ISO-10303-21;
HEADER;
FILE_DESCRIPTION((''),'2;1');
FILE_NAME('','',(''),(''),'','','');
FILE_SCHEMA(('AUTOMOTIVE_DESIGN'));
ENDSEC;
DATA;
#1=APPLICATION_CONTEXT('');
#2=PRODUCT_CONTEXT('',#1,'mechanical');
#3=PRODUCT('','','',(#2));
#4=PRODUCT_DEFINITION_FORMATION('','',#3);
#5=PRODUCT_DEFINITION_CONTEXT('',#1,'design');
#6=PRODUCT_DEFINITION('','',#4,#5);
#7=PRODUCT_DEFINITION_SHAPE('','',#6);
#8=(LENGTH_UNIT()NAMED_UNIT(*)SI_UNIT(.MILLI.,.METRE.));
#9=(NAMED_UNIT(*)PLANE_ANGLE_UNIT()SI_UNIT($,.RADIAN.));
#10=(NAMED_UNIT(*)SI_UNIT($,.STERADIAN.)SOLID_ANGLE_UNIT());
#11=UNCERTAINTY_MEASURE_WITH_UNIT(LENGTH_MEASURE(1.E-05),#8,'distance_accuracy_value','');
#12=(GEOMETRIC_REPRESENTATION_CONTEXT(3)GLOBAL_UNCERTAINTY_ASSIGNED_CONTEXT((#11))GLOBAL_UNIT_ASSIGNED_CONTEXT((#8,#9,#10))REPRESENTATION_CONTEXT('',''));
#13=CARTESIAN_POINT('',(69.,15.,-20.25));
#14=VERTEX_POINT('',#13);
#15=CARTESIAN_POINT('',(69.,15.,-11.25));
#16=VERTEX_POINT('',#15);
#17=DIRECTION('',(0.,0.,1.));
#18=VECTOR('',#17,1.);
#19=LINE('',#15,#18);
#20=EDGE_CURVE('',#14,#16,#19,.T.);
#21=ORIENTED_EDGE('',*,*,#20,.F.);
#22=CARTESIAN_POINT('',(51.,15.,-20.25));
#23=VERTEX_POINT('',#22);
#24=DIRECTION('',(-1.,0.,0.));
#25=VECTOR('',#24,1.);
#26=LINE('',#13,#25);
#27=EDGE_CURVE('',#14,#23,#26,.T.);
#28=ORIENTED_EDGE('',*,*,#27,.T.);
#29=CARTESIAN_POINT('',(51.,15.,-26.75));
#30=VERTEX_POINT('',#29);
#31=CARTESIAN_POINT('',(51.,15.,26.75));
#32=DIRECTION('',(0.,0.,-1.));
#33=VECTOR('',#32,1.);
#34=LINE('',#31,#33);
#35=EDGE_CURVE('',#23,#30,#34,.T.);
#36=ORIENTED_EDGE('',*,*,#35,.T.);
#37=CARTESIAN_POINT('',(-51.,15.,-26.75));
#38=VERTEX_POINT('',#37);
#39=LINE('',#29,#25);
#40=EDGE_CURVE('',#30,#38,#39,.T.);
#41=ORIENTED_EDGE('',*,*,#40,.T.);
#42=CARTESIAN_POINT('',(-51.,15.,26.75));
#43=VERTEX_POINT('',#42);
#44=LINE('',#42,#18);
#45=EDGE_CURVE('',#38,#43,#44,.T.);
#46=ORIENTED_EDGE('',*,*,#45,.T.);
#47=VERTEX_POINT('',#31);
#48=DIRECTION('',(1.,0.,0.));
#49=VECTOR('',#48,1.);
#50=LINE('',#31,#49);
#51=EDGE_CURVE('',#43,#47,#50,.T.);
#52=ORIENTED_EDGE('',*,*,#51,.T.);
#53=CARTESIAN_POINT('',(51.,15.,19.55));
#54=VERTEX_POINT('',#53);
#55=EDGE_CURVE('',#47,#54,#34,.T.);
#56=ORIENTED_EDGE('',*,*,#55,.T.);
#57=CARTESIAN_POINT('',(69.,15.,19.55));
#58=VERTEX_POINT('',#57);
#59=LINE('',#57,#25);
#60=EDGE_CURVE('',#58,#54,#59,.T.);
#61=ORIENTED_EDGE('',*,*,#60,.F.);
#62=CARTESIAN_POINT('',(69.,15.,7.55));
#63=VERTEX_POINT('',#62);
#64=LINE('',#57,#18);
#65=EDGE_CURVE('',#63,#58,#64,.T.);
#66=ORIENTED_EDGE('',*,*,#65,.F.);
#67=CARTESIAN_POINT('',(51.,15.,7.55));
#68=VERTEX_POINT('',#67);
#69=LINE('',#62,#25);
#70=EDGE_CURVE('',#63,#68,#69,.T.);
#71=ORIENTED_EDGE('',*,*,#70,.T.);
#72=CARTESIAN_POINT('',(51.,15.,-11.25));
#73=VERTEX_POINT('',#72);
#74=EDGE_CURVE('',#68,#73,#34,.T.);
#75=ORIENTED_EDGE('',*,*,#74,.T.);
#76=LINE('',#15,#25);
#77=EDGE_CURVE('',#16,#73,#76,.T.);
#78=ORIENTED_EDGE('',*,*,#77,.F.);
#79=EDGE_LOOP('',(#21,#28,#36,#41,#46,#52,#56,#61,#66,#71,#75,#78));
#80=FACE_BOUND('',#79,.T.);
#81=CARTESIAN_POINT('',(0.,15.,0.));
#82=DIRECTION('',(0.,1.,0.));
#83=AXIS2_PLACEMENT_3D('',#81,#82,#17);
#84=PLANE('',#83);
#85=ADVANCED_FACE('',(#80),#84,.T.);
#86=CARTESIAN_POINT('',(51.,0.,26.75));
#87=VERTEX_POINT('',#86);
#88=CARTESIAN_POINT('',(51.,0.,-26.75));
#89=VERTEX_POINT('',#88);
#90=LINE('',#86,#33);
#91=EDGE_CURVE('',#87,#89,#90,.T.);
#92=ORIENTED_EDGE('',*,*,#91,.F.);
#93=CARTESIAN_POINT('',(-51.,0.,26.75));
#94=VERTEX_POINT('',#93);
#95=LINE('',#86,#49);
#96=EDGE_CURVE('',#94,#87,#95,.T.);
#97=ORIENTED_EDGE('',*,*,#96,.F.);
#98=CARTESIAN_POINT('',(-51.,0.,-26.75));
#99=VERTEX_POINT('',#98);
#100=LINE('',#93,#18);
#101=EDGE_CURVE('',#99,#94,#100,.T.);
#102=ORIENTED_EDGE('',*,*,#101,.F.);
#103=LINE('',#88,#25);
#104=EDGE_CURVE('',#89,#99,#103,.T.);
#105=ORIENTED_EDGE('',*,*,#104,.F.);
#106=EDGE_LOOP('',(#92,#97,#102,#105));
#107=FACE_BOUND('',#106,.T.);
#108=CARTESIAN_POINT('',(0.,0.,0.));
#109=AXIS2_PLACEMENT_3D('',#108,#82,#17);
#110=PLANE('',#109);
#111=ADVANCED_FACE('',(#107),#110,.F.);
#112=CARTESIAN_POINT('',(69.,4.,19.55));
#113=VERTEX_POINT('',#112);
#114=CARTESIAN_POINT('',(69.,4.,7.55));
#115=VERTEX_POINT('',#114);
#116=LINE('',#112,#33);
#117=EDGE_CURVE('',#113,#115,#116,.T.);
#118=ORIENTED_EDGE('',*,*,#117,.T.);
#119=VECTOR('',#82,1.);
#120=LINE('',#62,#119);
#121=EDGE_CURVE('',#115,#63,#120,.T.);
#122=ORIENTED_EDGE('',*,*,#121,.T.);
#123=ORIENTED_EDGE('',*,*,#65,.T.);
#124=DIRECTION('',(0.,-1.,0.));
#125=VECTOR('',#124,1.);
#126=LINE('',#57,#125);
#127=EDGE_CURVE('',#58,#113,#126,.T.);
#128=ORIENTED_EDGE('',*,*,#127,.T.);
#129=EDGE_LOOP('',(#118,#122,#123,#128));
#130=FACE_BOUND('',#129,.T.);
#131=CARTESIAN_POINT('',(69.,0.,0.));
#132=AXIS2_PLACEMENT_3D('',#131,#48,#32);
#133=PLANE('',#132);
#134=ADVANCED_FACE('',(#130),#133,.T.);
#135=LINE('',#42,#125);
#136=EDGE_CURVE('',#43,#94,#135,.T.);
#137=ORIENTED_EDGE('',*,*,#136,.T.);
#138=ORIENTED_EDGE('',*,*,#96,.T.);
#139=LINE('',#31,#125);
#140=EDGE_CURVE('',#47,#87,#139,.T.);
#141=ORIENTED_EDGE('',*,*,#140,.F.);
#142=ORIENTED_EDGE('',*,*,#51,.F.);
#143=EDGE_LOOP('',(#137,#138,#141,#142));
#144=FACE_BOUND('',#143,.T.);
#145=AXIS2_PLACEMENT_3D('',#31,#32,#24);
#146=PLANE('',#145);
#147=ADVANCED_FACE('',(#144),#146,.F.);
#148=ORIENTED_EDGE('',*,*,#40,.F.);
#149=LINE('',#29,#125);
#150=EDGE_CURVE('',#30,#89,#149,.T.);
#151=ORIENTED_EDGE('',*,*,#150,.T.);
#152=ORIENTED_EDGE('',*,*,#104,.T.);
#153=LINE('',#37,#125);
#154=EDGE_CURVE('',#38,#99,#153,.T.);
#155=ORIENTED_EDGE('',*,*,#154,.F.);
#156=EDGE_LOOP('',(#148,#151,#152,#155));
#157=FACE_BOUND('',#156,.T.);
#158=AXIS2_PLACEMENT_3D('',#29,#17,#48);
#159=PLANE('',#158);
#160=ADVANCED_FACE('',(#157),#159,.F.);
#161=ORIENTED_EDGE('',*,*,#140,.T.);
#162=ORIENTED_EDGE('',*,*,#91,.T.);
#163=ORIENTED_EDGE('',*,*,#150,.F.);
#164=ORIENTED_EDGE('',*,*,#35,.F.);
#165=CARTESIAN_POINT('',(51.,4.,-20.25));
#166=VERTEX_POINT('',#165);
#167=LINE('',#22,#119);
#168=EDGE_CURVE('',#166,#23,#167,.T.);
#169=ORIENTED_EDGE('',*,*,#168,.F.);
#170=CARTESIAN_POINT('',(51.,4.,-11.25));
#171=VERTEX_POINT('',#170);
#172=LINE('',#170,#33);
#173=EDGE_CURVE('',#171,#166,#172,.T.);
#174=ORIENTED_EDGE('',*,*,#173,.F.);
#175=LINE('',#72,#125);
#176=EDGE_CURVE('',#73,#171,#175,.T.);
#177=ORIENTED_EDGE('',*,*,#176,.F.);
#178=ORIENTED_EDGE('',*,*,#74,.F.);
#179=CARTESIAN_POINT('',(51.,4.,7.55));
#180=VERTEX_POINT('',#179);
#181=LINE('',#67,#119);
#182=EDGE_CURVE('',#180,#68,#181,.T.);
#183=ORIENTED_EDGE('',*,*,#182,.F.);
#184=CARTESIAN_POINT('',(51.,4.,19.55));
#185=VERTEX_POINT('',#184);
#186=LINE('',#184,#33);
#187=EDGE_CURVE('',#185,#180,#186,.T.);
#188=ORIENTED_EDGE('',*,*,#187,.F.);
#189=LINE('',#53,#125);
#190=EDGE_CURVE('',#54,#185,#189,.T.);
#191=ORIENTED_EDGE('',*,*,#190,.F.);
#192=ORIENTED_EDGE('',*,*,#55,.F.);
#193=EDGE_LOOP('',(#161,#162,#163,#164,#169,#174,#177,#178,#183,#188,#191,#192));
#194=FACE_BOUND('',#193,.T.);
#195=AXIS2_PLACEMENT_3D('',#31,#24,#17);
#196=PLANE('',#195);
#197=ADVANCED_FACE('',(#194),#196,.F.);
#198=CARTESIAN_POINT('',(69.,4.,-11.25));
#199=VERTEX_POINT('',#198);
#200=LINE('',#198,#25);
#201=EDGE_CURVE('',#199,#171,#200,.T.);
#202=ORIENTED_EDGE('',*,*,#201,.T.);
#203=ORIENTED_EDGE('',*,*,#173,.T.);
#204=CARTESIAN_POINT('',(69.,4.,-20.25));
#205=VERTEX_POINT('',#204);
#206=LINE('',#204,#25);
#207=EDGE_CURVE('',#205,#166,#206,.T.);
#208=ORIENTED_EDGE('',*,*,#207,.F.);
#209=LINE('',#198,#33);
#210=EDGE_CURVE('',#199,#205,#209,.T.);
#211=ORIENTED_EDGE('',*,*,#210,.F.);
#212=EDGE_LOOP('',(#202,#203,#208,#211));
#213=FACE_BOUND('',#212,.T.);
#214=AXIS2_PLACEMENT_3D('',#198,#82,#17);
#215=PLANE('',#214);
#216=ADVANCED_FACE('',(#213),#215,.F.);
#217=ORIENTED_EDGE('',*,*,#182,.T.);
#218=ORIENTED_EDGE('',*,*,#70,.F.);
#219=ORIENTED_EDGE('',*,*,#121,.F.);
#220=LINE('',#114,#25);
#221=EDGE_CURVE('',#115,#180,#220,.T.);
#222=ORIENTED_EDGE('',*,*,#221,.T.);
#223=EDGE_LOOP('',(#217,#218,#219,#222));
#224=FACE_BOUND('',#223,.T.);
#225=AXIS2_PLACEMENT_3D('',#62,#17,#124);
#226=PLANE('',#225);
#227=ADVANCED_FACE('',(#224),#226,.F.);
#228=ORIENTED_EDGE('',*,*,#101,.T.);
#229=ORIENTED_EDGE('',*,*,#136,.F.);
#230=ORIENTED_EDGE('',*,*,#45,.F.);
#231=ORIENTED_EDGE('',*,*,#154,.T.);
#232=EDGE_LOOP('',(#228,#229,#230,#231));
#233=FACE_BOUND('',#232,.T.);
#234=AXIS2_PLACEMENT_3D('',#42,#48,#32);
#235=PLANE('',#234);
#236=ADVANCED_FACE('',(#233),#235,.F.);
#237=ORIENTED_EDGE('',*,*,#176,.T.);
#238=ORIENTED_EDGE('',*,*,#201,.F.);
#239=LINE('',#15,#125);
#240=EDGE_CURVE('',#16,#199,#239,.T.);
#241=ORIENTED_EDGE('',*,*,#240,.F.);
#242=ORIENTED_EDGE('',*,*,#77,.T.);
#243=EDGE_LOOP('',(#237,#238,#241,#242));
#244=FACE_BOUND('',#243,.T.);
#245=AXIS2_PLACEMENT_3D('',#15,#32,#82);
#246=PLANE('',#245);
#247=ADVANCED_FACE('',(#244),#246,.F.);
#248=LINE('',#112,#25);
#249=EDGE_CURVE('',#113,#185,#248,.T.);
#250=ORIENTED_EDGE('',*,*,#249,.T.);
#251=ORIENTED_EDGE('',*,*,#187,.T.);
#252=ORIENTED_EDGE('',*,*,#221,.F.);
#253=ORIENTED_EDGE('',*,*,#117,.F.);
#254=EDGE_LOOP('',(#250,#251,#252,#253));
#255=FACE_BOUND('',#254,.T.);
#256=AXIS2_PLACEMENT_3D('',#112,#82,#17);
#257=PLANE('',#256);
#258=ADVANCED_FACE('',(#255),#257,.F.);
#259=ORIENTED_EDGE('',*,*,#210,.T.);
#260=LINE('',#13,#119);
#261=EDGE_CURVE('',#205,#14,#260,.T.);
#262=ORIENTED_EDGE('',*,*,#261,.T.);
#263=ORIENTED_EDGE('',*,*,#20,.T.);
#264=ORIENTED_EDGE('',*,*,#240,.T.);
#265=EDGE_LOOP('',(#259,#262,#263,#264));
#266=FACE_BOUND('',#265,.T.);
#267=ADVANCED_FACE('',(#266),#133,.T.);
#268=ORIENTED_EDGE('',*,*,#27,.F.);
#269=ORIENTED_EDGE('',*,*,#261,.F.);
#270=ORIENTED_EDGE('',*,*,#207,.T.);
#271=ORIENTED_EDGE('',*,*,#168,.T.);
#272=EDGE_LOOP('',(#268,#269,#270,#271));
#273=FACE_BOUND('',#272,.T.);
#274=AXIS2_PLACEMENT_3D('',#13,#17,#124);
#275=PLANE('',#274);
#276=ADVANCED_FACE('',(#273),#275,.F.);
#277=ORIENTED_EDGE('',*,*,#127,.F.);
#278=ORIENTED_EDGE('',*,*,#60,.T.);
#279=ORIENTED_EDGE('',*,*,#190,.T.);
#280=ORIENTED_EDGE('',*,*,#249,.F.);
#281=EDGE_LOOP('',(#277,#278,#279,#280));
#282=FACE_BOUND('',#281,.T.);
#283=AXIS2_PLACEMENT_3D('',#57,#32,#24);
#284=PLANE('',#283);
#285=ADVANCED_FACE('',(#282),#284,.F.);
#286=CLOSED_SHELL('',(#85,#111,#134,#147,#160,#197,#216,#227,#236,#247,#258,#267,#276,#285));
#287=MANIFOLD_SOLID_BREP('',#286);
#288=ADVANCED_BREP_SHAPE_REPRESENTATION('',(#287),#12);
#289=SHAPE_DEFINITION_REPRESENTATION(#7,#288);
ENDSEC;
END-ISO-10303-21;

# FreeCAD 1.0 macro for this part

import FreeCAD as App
import Part
import Sketcher


def add_polygon(sketch, points):
    """Adds a closed chain of lines whose ends are joined by coincident constraints."""
    first, n = sketch.GeometryCount, len(points)
    for a, b in zip(points, points[1:] + points[:1]):
        sketch.addGeometry(Part.LineSegment(App.Vector(*a, 0), App.Vector(*b, 0)), False)
    for i in range(n):
        sketch.addConstraint(Sketcher.Constraint("Coincident", first + i, 2, first + (i + 1) % n, 1))

doc = App.newDocument("Part")
body = doc.addObject("PartDesign::Body", "Body")

# Sketch on XZ plane
sketch1 = doc.addObject("Sketcher::SketchObject", "Sketch")
body.addObject(sketch1)
sketch1.AttachmentSupport = (doc.XZ_Plane, [""])
sketch1.MapMode = "FlatFace"
add_polygon(sketch1, [(-51, -26.75), (-51, 26.75), (51, 26.75), (51, -26.75)])  # lines 0-3
sketch1.addConstraint(Sketcher.Constraint("Vertical", 0))
sketch1.addConstraint(Sketcher.Constraint("Horizontal", 1))
sketch1.addConstraint(Sketcher.Constraint("Vertical", 2))
sketch1.addConstraint(Sketcher.Constraint("Horizontal", 3))
sketch1.addConstraint(Sketcher.Constraint("Symmetric", 0, 2, 2, 2, -1, 1))
sketch1.addConstraint(Sketcher.Constraint("DistanceX", 1, 1, 1, 2, 102.0))
sketch1.addConstraint(Sketcher.Constraint("DistanceY", 0, 1, 0, 2, 53.5))
pad1 = doc.addObject("PartDesign::Pad", "Pad")
body.addObject(pad1)
pad1.Profile = sketch1
pad1.Length = 15
pad1.Reversed = True

# Sketch on YZ plane
sketch2 = doc.addObject("Sketcher::SketchObject", "Sketch001")
body.addObject(sketch2)
sketch2.AttachmentSupport = (doc.YZ_Plane, [""])
sketch2.MapMode = "FlatFace"
sketch2.AttachmentOffset = App.Placement(App.Vector(0, 0, 51), App.Rotation())
add_polygon(sketch2, [(15, 19.55), (4, 19.55), (4, 7.55), (15, 7.55)])  # lines 0-3
add_polygon(sketch2, [(15, -11.25), (4, -11.25), (4, -20.25), (15, -20.25)])  # lines 4-7
sketch2.addConstraint(Sketcher.Constraint("Horizontal", 0))
sketch2.addConstraint(Sketcher.Constraint("Vertical", 1))
sketch2.addConstraint(Sketcher.Constraint("Horizontal", 2))
sketch2.addConstraint(Sketcher.Constraint("Vertical", 3))
sketch2.addConstraint(Sketcher.Constraint("Horizontal", 4))
sketch2.addConstraint(Sketcher.Constraint("Vertical", 5))
sketch2.addConstraint(Sketcher.Constraint("Horizontal", 6))
sketch2.addConstraint(Sketcher.Constraint("Vertical", 7))
sketch2.addConstraint(Sketcher.Constraint("Vertical", 1, 2, 4, 2))
sketch2.addConstraint(Sketcher.Constraint("Vertical", 3, 2, 6, 2))
sketch2.addConstraint(Sketcher.Constraint("DistanceX", 0, 2, 0, 1, 11.0))
sketch2.addConstraint(Sketcher.Constraint("DistanceY", 1, 2, 1, 1, 12.0))
sketch2.addConstraint(Sketcher.Constraint("DistanceY", 5, 2, 5, 1, 9.0))
sketch2.addConstraint(Sketcher.Constraint("DistanceX", -1, 1, 0, 2, 4.0))
sketch2.addConstraint(Sketcher.Constraint("DistanceY", 4, 2, 1, 2, 18.8))
sketch2.addConstraint(Sketcher.Constraint("DistanceY", -1, 1, 0, 2, 19.55))
pad2 = doc.addObject("PartDesign::Pad", "Pad001")
body.addObject(pad2)
pad2.Profile = sketch2
pad2.Length = 18

doc.recompute()
